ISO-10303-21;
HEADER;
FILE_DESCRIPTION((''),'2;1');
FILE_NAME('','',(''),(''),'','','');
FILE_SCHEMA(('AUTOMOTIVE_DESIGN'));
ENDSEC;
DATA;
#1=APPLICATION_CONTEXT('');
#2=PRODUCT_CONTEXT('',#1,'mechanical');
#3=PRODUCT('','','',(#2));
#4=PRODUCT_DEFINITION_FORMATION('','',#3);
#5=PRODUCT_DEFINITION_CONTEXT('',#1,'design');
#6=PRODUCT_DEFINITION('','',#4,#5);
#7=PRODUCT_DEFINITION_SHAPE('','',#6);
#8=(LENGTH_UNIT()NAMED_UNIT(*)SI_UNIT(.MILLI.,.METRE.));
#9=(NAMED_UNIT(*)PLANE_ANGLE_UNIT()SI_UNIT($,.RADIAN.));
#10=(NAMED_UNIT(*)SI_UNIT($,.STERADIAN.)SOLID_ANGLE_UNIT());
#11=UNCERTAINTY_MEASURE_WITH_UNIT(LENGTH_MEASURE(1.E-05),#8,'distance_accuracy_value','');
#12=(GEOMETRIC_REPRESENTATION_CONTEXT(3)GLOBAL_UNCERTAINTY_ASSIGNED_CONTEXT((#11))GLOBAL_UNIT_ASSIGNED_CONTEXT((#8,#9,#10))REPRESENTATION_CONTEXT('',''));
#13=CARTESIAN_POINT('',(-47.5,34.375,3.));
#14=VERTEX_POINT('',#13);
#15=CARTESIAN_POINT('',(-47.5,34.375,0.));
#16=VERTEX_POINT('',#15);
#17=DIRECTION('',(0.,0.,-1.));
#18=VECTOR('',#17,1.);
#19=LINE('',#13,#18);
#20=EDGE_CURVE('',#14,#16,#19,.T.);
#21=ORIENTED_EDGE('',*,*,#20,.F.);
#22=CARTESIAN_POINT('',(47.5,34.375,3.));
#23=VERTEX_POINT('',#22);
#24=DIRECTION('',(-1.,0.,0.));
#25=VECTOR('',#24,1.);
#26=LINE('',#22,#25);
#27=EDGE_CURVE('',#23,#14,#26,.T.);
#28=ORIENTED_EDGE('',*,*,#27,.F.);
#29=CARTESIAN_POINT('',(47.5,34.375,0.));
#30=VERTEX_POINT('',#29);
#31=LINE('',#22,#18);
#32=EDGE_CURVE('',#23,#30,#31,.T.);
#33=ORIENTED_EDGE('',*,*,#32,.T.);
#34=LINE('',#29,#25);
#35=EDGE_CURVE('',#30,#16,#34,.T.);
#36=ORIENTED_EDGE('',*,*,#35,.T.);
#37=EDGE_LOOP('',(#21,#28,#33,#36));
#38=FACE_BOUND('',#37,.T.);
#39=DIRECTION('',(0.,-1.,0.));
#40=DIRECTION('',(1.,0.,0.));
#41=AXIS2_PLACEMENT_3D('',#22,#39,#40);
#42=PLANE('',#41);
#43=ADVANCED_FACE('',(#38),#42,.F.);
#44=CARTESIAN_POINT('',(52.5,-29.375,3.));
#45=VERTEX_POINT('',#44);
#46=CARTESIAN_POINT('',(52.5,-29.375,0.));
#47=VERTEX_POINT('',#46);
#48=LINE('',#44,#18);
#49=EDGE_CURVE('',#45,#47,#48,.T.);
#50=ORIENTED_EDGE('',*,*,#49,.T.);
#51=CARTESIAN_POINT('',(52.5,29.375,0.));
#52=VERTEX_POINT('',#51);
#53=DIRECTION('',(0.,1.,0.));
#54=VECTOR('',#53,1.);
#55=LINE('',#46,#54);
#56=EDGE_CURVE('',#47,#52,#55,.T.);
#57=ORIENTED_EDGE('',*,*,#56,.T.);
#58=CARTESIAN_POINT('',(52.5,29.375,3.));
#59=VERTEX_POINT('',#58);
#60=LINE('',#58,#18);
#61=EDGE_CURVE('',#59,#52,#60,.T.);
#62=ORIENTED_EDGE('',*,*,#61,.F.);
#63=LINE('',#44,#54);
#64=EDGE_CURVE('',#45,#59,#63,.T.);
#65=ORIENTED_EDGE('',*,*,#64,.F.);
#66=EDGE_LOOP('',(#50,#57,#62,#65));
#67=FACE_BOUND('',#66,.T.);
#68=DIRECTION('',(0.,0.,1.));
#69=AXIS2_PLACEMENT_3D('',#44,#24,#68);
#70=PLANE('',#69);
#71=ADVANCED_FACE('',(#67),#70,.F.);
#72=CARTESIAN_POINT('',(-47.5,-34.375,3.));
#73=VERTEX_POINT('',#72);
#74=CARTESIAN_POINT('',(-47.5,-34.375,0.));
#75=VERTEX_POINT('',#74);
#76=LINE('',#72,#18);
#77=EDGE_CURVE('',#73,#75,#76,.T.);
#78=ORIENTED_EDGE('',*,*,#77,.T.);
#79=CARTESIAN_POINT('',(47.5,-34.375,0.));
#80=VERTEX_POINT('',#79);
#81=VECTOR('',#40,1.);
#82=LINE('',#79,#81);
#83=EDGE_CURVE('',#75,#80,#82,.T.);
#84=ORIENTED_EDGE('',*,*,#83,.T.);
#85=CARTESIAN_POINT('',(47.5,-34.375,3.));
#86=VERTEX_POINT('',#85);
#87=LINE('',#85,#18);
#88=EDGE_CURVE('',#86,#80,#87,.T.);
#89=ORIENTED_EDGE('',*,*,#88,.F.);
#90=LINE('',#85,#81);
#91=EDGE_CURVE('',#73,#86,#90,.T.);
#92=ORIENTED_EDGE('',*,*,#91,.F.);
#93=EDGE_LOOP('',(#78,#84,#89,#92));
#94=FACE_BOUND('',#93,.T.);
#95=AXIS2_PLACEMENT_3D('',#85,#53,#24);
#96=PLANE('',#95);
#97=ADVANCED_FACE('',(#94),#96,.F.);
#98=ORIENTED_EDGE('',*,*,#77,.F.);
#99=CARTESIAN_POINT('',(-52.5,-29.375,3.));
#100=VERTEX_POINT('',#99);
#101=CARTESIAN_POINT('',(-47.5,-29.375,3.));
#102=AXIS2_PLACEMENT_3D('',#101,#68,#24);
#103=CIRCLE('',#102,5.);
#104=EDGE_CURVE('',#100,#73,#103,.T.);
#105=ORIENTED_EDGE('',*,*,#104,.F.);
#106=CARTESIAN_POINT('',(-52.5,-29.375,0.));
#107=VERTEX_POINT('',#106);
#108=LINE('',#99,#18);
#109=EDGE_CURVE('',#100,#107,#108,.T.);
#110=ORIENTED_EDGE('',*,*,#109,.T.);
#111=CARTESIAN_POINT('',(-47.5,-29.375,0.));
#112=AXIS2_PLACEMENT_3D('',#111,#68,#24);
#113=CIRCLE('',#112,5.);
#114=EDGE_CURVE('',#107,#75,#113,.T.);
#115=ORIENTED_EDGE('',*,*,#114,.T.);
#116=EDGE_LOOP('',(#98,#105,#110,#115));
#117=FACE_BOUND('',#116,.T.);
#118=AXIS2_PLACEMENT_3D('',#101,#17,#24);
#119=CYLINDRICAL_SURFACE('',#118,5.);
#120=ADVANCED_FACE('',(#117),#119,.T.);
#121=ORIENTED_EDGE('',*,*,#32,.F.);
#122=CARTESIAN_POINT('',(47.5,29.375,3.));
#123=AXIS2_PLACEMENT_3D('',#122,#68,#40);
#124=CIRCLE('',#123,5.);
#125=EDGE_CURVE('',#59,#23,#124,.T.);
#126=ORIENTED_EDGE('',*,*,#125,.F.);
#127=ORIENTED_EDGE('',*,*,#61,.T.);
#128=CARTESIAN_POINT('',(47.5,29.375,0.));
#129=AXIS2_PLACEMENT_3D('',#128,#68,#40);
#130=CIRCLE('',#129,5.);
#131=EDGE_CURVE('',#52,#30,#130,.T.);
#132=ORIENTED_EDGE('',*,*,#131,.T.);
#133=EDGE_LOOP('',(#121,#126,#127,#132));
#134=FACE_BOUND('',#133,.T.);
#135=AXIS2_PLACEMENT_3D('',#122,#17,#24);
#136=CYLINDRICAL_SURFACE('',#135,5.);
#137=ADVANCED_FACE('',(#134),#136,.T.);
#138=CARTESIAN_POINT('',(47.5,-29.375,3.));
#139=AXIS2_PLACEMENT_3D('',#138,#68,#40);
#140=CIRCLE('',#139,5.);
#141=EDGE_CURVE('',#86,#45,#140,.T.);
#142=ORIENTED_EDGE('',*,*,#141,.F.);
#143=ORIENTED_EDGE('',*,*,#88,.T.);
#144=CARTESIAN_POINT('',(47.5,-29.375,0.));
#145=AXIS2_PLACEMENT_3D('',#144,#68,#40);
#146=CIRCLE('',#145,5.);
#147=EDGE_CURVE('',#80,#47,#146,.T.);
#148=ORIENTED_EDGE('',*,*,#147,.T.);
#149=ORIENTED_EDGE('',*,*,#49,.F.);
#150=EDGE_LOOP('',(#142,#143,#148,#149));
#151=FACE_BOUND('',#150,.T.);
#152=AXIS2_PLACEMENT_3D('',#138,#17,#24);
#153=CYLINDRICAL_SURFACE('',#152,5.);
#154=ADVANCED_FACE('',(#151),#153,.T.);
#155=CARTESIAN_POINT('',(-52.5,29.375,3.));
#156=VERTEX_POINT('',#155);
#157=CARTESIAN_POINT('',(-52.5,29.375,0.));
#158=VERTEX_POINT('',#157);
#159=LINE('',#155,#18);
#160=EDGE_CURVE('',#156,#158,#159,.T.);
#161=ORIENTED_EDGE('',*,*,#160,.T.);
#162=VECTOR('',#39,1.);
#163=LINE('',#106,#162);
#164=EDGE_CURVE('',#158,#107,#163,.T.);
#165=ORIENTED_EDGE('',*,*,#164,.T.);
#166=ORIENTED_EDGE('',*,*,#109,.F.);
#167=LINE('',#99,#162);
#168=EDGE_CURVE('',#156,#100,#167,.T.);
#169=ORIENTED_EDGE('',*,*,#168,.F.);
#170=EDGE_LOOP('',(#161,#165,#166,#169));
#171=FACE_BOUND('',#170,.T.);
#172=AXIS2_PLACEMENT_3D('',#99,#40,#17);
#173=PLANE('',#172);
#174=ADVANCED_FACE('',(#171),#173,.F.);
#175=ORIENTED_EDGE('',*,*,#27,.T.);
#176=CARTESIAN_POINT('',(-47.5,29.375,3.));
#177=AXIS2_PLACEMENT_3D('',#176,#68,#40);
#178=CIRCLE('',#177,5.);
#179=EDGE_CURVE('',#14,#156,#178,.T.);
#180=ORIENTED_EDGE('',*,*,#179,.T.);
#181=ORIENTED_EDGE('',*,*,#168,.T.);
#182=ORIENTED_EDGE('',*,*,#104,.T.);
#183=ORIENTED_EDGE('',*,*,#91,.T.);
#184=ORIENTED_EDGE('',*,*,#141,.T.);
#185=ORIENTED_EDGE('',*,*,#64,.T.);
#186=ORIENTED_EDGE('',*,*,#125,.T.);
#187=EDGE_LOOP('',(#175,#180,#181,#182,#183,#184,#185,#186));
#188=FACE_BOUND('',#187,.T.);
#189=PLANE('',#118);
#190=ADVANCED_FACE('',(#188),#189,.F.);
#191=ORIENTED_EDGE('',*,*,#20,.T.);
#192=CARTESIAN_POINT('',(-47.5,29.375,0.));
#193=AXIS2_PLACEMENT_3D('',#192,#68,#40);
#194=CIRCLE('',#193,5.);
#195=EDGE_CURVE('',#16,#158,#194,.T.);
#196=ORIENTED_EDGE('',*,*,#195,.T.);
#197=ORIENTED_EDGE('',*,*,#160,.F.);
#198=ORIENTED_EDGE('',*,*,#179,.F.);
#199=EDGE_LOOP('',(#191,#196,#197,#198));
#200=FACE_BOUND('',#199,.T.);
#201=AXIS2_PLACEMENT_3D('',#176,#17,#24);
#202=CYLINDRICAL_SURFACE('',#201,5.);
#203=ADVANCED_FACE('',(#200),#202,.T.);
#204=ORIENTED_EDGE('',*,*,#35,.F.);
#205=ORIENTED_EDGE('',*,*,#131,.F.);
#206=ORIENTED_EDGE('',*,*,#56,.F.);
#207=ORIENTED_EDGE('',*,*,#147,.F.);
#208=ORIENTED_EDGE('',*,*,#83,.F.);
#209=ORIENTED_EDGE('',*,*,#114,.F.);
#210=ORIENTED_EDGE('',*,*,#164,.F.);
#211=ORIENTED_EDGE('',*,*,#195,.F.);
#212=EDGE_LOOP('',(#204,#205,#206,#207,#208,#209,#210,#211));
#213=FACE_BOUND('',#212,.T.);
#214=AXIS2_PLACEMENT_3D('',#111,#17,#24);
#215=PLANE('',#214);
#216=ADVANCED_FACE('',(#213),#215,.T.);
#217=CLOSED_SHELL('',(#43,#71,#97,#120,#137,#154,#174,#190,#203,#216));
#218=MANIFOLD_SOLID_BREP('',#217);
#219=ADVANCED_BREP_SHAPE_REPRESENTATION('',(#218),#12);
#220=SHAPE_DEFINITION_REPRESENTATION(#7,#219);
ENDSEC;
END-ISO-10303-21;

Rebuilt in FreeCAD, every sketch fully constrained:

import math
import FreeCAD as App
import Part
import Sketcher

V = App.Vector
Q = App.Units.Quantity

doc = App.newDocument("Part")
params = doc.addObject("Spreadsheet::Sheet", "Params")
for row, (alias, value) in enumerate([
    ("sketch1_radius", "5 mm"),
    ("sketch1_width", "95 mm"),
    ("sketch1_height", "58.75 mm"),
    ("pad1_length", "3 mm"),
], start=1):
    params.set(f"A{row}", alias)
    params.set(f"B{row}", "=" + value)
    params.setAlias(f"B{row}", alias)

body = doc.addObject("PartDesign::Body", "Body")

# Sketch on XY plane
sketch1 = doc.addObject("Sketcher::SketchObject", "Sketch")
body.addObject(sketch1)
sketch1.AttachmentSupport = (doc.XY_Plane, [""])
sketch1.MapMode = "FlatFace"
sketch1.addGeometry(Part.LineSegment(V(-47.5, -34.375, 0), V(47.5, -34.375, 0)), False)
sketch1.addGeometry(Part.ArcOfCircle(Part.Circle(V(47.5, -29.375, 0), V(0, 0, 1), 5), math.radians(-90), math.radians(0)), False)
sketch1.addGeometry(Part.LineSegment(V(52.5, -29.375, 0), V(52.5, 29.375, 0)), False)
sketch1.addGeometry(Part.ArcOfCircle(Part.Circle(V(47.5, 29.375, 0), V(0, 0, 1), 5), math.radians(0), math.radians(90)), False)
sketch1.addGeometry(Part.LineSegment(V(47.5, 34.375, 0), V(-47.5, 34.375, 0)), False)
sketch1.addGeometry(Part.ArcOfCircle(Part.Circle(V(-47.5, 29.375, 0), V(0, 0, 1), 5), math.radians(90), math.radians(180)), False)
sketch1.addGeometry(Part.LineSegment(V(-52.5, 29.375, 0), V(-52.5, -29.375, 0)), False)
sketch1.addGeometry(Part.ArcOfCircle(Part.Circle(V(-47.5, -29.375, 0), V(0, 0, 1), 5), math.radians(180), math.radians(270)), False)
sketch1.addConstraint(Sketcher.Constraint("Tangent", 0, 2, 1, 1))
sketch1.addConstraint(Sketcher.Constraint("Tangent", 1, 2, 2, 1))
sketch1.addConstraint(Sketcher.Constraint("Tangent", 2, 2, 3, 1))
sketch1.addConstraint(Sketcher.Constraint("Tangent", 3, 2, 4, 1))
sketch1.addConstraint(Sketcher.Constraint("Tangent", 4, 2, 5, 1))
sketch1.addConstraint(Sketcher.Constraint("Tangent", 5, 2, 6, 1))
sketch1.addConstraint(Sketcher.Constraint("Tangent", 6, 2, 7, 1))
sketch1.addConstraint(Sketcher.Constraint("Tangent", 7, 2, 0, 1))
sketch1.addConstraint(Sketcher.Constraint("Horizontal", 0))
sketch1.addConstraint(Sketcher.Constraint("Vertical", 2))
sketch1.addConstraint(Sketcher.Constraint("Horizontal", 4))
sketch1.addConstraint(Sketcher.Constraint("Vertical", 6))
sketch1.addConstraint(Sketcher.Constraint("Equal", 1, 3))
sketch1.addConstraint(Sketcher.Constraint("Equal", 3, 5))
sketch1.addConstraint(Sketcher.Constraint("Equal", 5, 7))
sketch1.addConstraint(Sketcher.Constraint("Symmetric", 1, 3, 5, 3, -1, 1))
sketch1.addConstraint(Sketcher.Constraint("Radius", 1, Q("5 mm")))
sketch1.addConstraint(Sketcher.Constraint("DistanceX", 0, 1, 0, 2, Q("95 mm")))
sketch1.addConstraint(Sketcher.Constraint("DistanceY", 2, 1, 2, 2, Q("58.75 mm")))
sketch1.setExpression("Constraints[16]", "Params.sketch1_radius")
sketch1.setExpression("Constraints[17]", "Params.sketch1_width")
sketch1.setExpression("Constraints[18]", "Params.sketch1_height")
pad1 = doc.addObject("PartDesign::Pad", "Pad")
body.addObject(pad1)
pad1.Profile = sketch1
pad1.setExpression("Length", "Params.pad1_length")

doc.recompute()
